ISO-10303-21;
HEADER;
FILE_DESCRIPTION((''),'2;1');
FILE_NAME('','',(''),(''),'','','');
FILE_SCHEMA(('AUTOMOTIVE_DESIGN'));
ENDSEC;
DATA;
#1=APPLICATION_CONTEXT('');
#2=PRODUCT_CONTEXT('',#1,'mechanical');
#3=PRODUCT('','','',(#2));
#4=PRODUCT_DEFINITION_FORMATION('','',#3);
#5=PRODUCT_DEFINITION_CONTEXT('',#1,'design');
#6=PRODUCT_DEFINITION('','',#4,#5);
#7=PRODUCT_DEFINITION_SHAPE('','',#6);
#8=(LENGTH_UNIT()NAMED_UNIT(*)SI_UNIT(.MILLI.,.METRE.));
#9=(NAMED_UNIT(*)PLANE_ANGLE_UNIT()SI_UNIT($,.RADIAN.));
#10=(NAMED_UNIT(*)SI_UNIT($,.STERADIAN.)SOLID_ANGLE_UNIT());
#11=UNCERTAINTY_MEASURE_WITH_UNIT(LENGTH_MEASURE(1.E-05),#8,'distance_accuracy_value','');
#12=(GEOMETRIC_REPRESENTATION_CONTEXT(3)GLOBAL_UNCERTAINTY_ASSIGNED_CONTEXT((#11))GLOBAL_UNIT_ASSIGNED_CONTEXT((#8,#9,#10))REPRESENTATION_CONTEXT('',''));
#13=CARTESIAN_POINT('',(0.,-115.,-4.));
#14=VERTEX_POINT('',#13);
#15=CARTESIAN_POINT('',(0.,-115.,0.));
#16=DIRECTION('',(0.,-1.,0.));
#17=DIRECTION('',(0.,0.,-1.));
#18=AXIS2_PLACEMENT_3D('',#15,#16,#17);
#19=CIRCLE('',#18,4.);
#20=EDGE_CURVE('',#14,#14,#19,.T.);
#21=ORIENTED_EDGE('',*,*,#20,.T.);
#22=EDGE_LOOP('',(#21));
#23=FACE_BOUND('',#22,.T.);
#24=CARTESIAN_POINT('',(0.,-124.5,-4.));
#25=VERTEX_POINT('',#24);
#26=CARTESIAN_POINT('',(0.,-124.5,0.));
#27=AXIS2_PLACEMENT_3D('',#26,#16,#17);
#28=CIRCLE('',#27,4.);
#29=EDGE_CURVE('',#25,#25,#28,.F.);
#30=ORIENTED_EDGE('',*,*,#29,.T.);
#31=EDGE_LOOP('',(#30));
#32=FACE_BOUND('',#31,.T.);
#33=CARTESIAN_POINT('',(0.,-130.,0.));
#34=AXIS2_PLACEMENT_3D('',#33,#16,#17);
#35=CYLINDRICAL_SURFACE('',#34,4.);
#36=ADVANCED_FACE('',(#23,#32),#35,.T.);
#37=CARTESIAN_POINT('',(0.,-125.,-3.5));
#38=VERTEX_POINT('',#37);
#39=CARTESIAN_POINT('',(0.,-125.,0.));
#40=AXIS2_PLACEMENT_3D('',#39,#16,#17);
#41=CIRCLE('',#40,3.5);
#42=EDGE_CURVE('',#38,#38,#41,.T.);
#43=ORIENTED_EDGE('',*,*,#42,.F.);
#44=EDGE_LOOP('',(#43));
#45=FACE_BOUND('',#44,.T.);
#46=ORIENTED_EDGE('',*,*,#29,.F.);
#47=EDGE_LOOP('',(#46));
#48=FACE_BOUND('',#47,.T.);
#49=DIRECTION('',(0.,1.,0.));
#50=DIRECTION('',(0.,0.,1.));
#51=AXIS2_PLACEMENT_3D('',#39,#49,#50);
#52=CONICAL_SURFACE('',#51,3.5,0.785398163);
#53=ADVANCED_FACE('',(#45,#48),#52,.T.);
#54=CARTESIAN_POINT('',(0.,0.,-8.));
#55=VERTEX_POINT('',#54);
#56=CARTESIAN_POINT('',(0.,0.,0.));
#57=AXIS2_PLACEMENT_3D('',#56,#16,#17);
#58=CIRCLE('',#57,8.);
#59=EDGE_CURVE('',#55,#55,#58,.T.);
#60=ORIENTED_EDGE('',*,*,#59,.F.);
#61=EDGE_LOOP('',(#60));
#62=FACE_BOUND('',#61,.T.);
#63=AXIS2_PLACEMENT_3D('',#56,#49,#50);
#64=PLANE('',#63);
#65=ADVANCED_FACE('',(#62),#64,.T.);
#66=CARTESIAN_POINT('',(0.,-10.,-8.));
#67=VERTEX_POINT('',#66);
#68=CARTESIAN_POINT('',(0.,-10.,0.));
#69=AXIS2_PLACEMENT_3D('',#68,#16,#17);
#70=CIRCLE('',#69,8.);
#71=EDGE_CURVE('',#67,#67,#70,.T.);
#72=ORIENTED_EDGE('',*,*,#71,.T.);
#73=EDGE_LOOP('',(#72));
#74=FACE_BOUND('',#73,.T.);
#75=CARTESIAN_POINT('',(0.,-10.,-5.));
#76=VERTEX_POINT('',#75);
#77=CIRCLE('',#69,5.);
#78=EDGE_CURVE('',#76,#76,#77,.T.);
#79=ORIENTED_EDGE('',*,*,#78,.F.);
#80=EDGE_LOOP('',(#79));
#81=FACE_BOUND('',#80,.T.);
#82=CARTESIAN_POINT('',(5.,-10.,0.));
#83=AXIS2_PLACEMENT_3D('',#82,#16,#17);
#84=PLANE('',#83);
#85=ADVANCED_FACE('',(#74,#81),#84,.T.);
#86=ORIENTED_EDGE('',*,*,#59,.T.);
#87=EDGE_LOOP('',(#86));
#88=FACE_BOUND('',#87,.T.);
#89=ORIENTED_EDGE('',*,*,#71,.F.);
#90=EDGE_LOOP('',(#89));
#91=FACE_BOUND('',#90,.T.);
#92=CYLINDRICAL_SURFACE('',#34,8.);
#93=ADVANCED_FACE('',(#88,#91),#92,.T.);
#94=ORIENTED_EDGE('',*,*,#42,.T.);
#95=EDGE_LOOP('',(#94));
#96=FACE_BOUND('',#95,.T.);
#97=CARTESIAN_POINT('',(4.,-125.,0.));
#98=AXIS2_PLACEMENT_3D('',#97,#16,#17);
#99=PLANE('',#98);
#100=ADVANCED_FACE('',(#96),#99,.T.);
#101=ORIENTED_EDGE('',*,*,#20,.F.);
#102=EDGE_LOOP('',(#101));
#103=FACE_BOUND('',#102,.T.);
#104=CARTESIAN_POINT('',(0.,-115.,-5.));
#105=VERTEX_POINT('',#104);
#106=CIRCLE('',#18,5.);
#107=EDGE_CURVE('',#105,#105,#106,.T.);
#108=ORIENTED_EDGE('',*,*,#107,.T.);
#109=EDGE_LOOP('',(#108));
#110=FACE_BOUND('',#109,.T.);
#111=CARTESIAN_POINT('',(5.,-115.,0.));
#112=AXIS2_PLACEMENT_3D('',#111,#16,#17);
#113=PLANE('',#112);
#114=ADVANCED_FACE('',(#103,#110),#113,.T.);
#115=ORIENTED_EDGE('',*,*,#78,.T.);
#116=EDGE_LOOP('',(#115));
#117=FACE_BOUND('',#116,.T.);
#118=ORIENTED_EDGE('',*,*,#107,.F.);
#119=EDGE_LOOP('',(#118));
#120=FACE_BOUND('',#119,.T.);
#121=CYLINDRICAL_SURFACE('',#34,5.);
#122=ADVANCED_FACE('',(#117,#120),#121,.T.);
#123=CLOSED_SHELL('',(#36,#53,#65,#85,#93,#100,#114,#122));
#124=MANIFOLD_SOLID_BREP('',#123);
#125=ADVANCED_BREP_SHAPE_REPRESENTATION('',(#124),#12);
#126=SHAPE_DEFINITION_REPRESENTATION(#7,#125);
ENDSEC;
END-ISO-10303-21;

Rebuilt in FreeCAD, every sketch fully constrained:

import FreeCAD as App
import Part
import Sketcher

V = App.Vector


def edges_at(feature, points):
    """Names of the edges that pass closest to the given points."""
    edges = feature.Shape.Edges
    near = lambda p: min(range(len(edges)), key=lambda i: edges[i].distToShape(Part.Vertex(*p))[0])
    return sorted({f"Edge{near(p) + 1}" for p in points})


def add_polygon(sketch, points):
    """Adds a closed chain of lines whose ends are joined by coincident constraints."""
    first, n = sketch.GeometryCount, len(points)
    for a, b in zip(points, points[1:] + points[:1]):
        sketch.addGeometry(Part.LineSegment(App.Vector(*a, 0), App.Vector(*b, 0)), False)
    for i in range(n):
        sketch.addConstraint(Sketcher.Constraint("Coincident", first + i, 2, first + (i + 1) % n, 1))

doc = App.newDocument("Part")
params = doc.addObject("Spreadsheet::Sheet", "Params")
for row, (alias, value) in enumerate([
    ("sketch1_width", "8 mm"),
    ("sketch1_width2", "4 mm"),
    ("sketch1_width3", "1 mm"),
    ("sketch1_height", "125 mm"),
    ("sketch1_height2", "10 mm"),
    ("revolution_angle", "360 deg"),
    ("chamfer_size", "0.5 mm"),
], start=1):
    params.set(f"A{row}", alias)
    params.set(f"B{row}", "=" + value)
    params.setAlias(f"B{row}", alias)

body = doc.addObject("PartDesign::Body", "Body")

sketch1 = doc.addObject("Sketcher::SketchObject", "Sketch")
body.addObject(sketch1)
sketch1.AttachmentSupport = (doc.XY_Plane, [""])
sketch1.MapMode = "FlatFace"
add_polygon(sketch1, [(8, 0), (0, 0), (0, -125), (4, -125), (4, -115), (5, -115), (5, -10), (8, -10)])
sketch1.addConstraint([
    Sketcher.Constraint("Horizontal", 0),
    Sketcher.Constraint("Vertical", 1),
    Sketcher.Constraint("Horizontal", 2),
    Sketcher.Constraint("Vertical", 3),
    Sketcher.Constraint("Horizontal", 4),
    Sketcher.Constraint("Vertical", 5),
    Sketcher.Constraint("Horizontal", 6),
    Sketcher.Constraint("Vertical", 7),
    Sketcher.Constraint("Coincident", 0, 2, -1, 1),
    Sketcher.Constraint("Equal", 3, 7),
    Sketcher.Constraint("DistanceX", 0, 2, 0, 1, 8.0),
    Sketcher.Constraint("DistanceX", 2, 1, 2, 2, 4.0),
    Sketcher.Constraint("DistanceX", 4, 1, 4, 2, 1.0),
    Sketcher.Constraint("DistanceY", 1, 2, 1, 1, 125.0),
    Sketcher.Constraint("DistanceY", 3, 1, 3, 2, 10.0),
])
sketch1.setExpression("Constraints[18]", "Params.sketch1_width")
sketch1.setExpression("Constraints[19]", "Params.sketch1_width2")
sketch1.setExpression("Constraints[20]", "Params.sketch1_width3")
sketch1.setExpression("Constraints[21]", "Params.sketch1_height")
sketch1.setExpression("Constraints[22]", "Params.sketch1_height2")
revolution = doc.addObject("PartDesign::Revolution", "Revolution")
body.addObject(revolution)
revolution.Profile = sketch1
revolution.ReferenceAxis = (sketch1, ["V_Axis"])
revolution.setExpression("Angle", "Params.revolution_angle")
doc.recompute()

chamfer = doc.addObject("PartDesign::Chamfer", "Chamfer")
body.addObject(chamfer)
chamfer.Base = (revolution, edges_at(revolution, [(0, -125, 4)]))
chamfer.setExpression("Size", "Params.chamfer_size")

doc.recompute()
